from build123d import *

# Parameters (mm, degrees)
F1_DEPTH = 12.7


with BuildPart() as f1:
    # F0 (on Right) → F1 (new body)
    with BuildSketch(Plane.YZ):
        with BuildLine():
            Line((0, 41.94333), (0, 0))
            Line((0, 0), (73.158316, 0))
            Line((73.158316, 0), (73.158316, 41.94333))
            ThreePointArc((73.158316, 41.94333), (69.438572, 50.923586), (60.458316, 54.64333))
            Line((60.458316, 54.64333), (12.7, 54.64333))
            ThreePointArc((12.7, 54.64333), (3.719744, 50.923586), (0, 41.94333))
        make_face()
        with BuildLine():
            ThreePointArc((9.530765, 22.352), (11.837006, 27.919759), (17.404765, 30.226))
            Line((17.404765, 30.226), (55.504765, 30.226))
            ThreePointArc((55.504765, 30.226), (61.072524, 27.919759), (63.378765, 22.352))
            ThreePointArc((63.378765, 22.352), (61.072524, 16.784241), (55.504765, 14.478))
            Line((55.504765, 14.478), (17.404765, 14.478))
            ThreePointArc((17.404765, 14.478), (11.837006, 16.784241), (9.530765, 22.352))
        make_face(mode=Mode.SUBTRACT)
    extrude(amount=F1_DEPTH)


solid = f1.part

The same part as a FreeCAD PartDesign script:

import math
import FreeCAD as App
import Part
import Sketcher

V = App.Vector
Q = App.Units.Quantity

doc = App.newDocument("Part")
body = doc.addObject("PartDesign::Body", "Body")

# Sketch on YZ plane
sketch1 = doc.addObject("Sketcher::SketchObject", "Sketch")
body.addObject(sketch1)
sketch1.AttachmentSupport = (doc.YZ_Plane, [""])
sketch1.MapMode = "FlatFace"
sketch1.addGeometry([
    Part.LineSegment(V(0, 42, 0), V(0, 0, 0)),  # 0
    Part.LineSegment(V(0, 0, 0), V(73, 0, 0)),  # 1
    Part.LineSegment(V(73, 0, 0), V(73, 42, 0)),  # 2
    Part.ArcOfCircle(Part.Circle(V(60, 42, 0), V(0, 0, 1), 13), math.radians(0), math.radians(90)),  # 3
    Part.LineSegment(V(60, 55, 0), V(13, 55, 0)),  # 4
    Part.ArcOfCircle(Part.Circle(V(13, 42, 0), V(0, 0, 1), 13), math.radians(90), math.radians(180)),  # 5
    Part.ArcOfCircle(Part.Circle(V(17, 22, 0), V(0, 0, 1), 8), math.radians(180), math.radians(270)),  # 6
    Part.ArcOfCircle(Part.Circle(V(17, 22, 0), V(0, 0, 1), 8), math.radians(90), math.radians(180)),  # 7
    Part.LineSegment(V(17, 30, 0), V(56, 30, 0)),  # 8
    Part.ArcOfCircle(Part.Circle(V(56, 22, 0), V(0, 0, 1), 8), math.radians(0), math.radians(90)),  # 9
    Part.ArcOfCircle(Part.Circle(V(56, 22, 0), V(0, 0, 1), 8), math.radians(-90), math.radians(0)),  # 10
    Part.LineSegment(V(56, 14, 0), V(17, 14, 0)),  # 11
], False)
sketch1.addConstraint([
    Sketcher.Constraint("Coincident", 0, 2, 1, 1),
    Sketcher.Constraint("Coincident", 1, 2, 2, 1),
    Sketcher.Constraint("Tangent", 2, 2, 3, 1),
    Sketcher.Constraint("Tangent", 3, 2, 4, 1),
    Sketcher.Constraint("Tangent", 4, 2, 5, 1),
    Sketcher.Constraint("Tangent", 5, 2, 0, 1),
    Sketcher.Constraint("Tangent", 6, 1, 7, 2),
    Sketcher.Constraint("Tangent", 7, 1, 8, 1),
    Sketcher.Constraint("Tangent", 8, 2, 9, 2),
    Sketcher.Constraint("Tangent", 9, 1, 10, 2),
    Sketcher.Constraint("Tangent", 10, 1, 11, 1),
    Sketcher.Constraint("Tangent", 11, 2, 6, 2),
    Sketcher.Constraint("Vertical", 0),
    Sketcher.Constraint("Horizontal", 1),
    Sketcher.Constraint("Vertical", 2),
    Sketcher.Constraint("Horizontal", 4),
    Sketcher.Constraint("Horizontal", 8),
    Sketcher.Constraint("Horizontal", 11),
    Sketcher.Constraint("Coincident", 0, 2, -1, 1),
    Sketcher.Constraint("Equal", 3, 5),
    Sketcher.Constraint("Equal", 6, 7),
    Sketcher.Constraint("Equal", 7, 9),
    Sketcher.Constraint("Horizontal", 10, 3, 6, 1),
    Sketcher.Constraint("Horizontal", 6, 1, 9, 1),
    Sketcher.Constraint("Radius", 3, Q("0.5 in")),
    Sketcher.Constraint("Radius", 6, Q("0.31 in")),
    Sketcher.Constraint("DistanceX", 8, 1, 8, 2, Q("1.5 in")),
    Sketcher.Constraint("DistanceY", -1, 1, 6, 3, Q("0.88 in")),
    Sketcher.Constraint("DistanceY", 0, 2, 0, 1, Q("41.94333 mm")),
    Sketcher.Constraint("DistanceX", 1, 1, 1, 2, Q("73.158316 mm")),
    Sketcher.Constraint("DistanceX", 6, 3, 3, 3, Q("43.053551 mm")),
])
pad1 = doc.addObject("PartDesign::Pad", "Pad")
body.addObject(pad1)
pad1.Profile = sketch1
pad1.Length = Q("0.5 in")

doc.recompute()
